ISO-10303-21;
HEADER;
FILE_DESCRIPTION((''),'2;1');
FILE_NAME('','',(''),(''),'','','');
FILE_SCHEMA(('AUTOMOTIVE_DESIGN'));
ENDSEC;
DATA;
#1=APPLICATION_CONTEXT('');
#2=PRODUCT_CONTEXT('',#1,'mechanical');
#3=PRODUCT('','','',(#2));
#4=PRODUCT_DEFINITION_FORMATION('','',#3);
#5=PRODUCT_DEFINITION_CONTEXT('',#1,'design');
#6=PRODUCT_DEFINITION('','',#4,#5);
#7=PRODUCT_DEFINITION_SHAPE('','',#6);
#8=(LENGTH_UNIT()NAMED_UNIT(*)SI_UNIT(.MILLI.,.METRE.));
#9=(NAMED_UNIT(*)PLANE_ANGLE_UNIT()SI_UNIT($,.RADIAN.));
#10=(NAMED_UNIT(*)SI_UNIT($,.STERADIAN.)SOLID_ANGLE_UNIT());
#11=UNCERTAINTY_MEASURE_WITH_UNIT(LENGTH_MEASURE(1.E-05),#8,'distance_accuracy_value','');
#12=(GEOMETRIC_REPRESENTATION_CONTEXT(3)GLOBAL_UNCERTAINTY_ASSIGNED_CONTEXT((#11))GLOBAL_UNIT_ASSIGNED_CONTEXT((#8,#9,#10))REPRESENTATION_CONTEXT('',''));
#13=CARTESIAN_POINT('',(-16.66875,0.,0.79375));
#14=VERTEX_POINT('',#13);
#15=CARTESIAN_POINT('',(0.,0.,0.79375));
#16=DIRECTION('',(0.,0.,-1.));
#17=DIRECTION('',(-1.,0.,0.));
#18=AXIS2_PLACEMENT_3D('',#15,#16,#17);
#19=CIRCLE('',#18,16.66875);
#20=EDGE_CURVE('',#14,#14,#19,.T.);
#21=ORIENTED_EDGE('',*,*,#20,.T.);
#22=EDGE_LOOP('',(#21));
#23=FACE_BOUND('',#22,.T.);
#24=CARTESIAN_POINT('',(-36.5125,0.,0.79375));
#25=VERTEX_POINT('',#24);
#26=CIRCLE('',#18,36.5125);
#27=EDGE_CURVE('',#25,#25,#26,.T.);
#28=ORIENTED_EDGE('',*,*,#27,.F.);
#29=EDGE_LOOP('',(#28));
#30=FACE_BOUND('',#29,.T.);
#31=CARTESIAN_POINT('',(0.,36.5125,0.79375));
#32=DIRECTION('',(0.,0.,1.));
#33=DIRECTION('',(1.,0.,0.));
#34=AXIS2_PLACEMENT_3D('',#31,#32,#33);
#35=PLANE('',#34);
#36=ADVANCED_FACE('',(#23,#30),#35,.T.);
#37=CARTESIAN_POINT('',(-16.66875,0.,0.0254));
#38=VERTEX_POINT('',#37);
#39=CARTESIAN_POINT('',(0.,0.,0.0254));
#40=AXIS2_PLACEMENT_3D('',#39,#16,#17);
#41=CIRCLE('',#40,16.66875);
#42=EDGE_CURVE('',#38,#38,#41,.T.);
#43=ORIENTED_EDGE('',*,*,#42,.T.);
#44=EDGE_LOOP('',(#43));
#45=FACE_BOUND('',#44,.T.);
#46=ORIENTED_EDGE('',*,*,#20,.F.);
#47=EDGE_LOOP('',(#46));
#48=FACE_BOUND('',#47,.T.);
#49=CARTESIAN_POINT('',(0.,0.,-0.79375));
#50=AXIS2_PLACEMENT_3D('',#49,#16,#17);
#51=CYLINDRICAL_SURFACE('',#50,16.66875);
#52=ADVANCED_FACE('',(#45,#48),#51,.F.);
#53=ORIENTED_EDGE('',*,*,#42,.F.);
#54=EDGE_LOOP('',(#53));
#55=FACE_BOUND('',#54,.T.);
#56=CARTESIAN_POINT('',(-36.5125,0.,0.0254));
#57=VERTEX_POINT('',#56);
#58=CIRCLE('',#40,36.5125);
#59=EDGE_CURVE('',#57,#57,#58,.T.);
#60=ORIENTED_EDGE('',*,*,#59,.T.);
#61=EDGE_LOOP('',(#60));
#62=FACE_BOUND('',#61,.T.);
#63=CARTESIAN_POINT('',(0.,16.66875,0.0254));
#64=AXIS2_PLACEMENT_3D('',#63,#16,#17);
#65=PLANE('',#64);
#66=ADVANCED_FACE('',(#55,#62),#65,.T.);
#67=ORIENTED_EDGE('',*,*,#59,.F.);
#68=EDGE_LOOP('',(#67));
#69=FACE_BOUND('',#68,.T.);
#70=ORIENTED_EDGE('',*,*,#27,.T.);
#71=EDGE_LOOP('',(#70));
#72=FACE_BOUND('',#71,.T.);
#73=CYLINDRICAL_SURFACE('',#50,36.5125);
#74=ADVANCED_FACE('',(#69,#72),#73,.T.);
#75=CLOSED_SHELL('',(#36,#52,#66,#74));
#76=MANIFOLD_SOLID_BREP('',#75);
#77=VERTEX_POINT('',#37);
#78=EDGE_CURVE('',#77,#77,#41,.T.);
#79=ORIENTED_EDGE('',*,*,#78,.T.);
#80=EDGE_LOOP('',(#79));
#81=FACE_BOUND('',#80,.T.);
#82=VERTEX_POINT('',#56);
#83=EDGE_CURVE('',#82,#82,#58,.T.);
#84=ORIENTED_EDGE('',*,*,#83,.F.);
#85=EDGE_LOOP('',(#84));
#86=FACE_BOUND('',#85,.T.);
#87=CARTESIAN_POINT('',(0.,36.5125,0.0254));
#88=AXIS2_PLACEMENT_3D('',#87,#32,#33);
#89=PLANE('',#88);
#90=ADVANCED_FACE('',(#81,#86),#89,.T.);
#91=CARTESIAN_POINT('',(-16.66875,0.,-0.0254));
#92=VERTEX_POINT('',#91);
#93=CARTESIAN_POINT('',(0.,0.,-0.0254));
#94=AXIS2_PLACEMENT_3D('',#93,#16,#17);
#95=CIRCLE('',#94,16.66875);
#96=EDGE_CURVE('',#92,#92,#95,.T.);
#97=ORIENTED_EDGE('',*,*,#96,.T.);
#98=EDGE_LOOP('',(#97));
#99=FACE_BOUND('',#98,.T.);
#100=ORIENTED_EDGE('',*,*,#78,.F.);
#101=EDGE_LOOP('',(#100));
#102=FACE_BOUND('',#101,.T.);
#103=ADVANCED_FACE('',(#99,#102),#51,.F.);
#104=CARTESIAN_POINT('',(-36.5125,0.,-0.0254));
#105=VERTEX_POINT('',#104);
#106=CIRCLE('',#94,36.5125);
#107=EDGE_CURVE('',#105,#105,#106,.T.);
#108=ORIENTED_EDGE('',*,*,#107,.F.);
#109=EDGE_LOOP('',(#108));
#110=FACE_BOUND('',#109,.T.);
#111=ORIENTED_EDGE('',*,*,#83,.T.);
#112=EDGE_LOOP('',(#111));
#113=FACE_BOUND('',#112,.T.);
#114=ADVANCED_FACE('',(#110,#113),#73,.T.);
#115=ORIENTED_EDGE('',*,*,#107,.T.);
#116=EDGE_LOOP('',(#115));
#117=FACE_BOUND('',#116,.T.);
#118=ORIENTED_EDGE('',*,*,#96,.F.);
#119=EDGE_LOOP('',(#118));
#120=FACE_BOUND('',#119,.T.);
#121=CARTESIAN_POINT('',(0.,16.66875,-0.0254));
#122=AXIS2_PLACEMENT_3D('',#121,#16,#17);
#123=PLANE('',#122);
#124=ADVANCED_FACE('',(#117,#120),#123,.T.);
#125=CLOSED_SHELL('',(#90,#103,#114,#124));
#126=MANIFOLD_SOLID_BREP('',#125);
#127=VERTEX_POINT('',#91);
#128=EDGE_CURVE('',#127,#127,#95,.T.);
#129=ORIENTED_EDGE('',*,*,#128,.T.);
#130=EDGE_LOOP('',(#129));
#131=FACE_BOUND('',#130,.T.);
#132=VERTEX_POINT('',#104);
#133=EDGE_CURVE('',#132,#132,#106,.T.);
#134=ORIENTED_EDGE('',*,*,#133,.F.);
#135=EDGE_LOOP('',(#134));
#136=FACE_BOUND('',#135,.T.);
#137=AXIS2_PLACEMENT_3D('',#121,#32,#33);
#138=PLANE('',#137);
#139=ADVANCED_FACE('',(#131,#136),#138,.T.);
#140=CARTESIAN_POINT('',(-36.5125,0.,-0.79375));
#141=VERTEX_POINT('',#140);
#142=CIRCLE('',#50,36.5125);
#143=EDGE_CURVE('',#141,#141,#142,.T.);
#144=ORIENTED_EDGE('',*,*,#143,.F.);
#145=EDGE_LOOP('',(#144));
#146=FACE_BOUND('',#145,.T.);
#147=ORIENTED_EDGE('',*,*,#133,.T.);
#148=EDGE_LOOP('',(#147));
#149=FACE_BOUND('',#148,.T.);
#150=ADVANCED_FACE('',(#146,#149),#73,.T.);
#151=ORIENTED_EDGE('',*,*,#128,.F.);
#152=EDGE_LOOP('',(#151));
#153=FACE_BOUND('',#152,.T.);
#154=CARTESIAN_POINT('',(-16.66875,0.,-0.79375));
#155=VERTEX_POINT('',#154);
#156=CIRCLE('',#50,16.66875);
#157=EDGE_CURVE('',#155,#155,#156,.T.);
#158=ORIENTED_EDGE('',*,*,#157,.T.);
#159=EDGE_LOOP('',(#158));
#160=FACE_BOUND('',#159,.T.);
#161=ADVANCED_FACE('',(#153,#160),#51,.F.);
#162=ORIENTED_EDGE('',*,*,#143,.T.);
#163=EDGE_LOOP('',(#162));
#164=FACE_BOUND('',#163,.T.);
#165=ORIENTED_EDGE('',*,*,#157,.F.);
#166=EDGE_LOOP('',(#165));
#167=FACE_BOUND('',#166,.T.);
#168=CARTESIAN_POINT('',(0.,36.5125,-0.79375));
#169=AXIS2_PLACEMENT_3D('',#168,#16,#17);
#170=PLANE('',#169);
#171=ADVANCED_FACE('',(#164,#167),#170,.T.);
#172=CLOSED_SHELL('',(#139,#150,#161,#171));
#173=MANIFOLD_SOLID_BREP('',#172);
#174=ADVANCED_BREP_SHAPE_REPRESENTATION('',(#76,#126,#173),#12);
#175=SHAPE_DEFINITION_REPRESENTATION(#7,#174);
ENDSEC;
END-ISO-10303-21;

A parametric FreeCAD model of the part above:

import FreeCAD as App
import Part
import Sketcher

V = App.Vector
Q = App.Units.Quantity


def add_polygon(sketch, points):
    """Adds a closed chain of lines whose ends are joined by coincident constraints."""
    first, n = sketch.GeometryCount, len(points)
    for a, b in zip(points, points[1:] + points[:1]):
        sketch.addGeometry(Part.LineSegment(App.Vector(*a, 0), App.Vector(*b, 0)), False)
    for i in range(n):
        sketch.addConstraint(Sketcher.Constraint("Coincident", first + i, 2, first + (i + 1) % n, 1))

doc = App.newDocument("Part")
body = doc.addObject("PartDesign::Body", "Body")

# Sketch on YZ plane
sketch1 = body.newObject("Sketcher::SketchObject", "Sketch")
sketch1.AttachmentSupport = (doc.getObject("YZ_Plane"), [""])
sketch1.MapMode = "FlatFace"
add_polygon(sketch1, [(36.51, 0.03), (16.67, 0.03), (16.67, -0.03), (36.51, -0.03)])  # lines 0-3
sketch1.addConstraint([
    Sketcher.Constraint("Horizontal", 0),
    Sketcher.Constraint("Vertical", 1),
    Sketcher.Constraint("Horizontal", 2),
    Sketcher.Constraint("Vertical", 3),
    Sketcher.Constraint("DistanceX", 0, 2, 0, 1, Q("0.78125 in")),
    Sketcher.Constraint("DistanceY", 1, 2, 1, 1, Q("0.002 in")),
    Sketcher.Constraint("DistanceX", -1, 1, 0, 2, Q("0.65625 in")),
    Sketcher.Constraint("DistanceY", -1, 1, 0, 2, Q("0.001 in")),
])
revolution = body.newObject("PartDesign::Revolution", "Revolution")
revolution.Profile = sketch1
revolution.ReferenceAxis = (sketch1, ["V_Axis"])
revolution.Angle = 360
body2 = doc.addObject("PartDesign::Body", "Body001")
body2.AllowCompound = True

# Sketch on YZ plane
sketch2 = body2.newObject("Sketcher::SketchObject", "Sketch001")
sketch2.AttachmentSupport = (doc.getObject("YZ_Plane001"), [""])
sketch2.MapMode = "FlatFace"
add_polygon(sketch2, [(36.5125, 0.79375), (16.66875, 0.79375), (16.66875, 0.0254), (36.5125, 0.0254)])  # lines 0-3
add_polygon(sketch2, [(36.5125, -0.0254), (16.66875, -0.0254), (16.66875, -0.79375), (36.5125, -0.79375)])  # lines 4-7
sketch2.addConstraint([
    Sketcher.Constraint("Horizontal", 0),
    Sketcher.Constraint("Vertical", 1),
    Sketcher.Constraint("Horizontal", 2),
    Sketcher.Constraint("Vertical", 3),
    Sketcher.Constraint("Horizontal", 4),
    Sketcher.Constraint("Vertical", 5),
    Sketcher.Constraint("Horizontal", 6),
    Sketcher.Constraint("Vertical", 7),
    Sketcher.Constraint("Symmetric", 1, 2, 4, 2, -1),
    Sketcher.Constraint("Symmetric", 3, 2, 6, 2, -1),
    Sketcher.Constraint("DistanceX", 0, 2, 0, 1, Q("0.78125 in")),
    Sketcher.Constraint("DistanceX", -1, 1, 0, 2, Q("0.65625 in")),
    Sketcher.Constraint("DistanceY", -1, 1, 0, 2, Q("0.03125 in")),
    Sketcher.Constraint("DistanceY", -1, 1, 1, 2, Q("0.001 in")),
])
revolution2 = body2.newObject("PartDesign::Revolution", "Revolution001")
revolution2.Profile = sketch2
revolution2.ReferenceAxis = (sketch2, ["V_Axis"])
revolution2.Angle = 360

doc.recompute()
